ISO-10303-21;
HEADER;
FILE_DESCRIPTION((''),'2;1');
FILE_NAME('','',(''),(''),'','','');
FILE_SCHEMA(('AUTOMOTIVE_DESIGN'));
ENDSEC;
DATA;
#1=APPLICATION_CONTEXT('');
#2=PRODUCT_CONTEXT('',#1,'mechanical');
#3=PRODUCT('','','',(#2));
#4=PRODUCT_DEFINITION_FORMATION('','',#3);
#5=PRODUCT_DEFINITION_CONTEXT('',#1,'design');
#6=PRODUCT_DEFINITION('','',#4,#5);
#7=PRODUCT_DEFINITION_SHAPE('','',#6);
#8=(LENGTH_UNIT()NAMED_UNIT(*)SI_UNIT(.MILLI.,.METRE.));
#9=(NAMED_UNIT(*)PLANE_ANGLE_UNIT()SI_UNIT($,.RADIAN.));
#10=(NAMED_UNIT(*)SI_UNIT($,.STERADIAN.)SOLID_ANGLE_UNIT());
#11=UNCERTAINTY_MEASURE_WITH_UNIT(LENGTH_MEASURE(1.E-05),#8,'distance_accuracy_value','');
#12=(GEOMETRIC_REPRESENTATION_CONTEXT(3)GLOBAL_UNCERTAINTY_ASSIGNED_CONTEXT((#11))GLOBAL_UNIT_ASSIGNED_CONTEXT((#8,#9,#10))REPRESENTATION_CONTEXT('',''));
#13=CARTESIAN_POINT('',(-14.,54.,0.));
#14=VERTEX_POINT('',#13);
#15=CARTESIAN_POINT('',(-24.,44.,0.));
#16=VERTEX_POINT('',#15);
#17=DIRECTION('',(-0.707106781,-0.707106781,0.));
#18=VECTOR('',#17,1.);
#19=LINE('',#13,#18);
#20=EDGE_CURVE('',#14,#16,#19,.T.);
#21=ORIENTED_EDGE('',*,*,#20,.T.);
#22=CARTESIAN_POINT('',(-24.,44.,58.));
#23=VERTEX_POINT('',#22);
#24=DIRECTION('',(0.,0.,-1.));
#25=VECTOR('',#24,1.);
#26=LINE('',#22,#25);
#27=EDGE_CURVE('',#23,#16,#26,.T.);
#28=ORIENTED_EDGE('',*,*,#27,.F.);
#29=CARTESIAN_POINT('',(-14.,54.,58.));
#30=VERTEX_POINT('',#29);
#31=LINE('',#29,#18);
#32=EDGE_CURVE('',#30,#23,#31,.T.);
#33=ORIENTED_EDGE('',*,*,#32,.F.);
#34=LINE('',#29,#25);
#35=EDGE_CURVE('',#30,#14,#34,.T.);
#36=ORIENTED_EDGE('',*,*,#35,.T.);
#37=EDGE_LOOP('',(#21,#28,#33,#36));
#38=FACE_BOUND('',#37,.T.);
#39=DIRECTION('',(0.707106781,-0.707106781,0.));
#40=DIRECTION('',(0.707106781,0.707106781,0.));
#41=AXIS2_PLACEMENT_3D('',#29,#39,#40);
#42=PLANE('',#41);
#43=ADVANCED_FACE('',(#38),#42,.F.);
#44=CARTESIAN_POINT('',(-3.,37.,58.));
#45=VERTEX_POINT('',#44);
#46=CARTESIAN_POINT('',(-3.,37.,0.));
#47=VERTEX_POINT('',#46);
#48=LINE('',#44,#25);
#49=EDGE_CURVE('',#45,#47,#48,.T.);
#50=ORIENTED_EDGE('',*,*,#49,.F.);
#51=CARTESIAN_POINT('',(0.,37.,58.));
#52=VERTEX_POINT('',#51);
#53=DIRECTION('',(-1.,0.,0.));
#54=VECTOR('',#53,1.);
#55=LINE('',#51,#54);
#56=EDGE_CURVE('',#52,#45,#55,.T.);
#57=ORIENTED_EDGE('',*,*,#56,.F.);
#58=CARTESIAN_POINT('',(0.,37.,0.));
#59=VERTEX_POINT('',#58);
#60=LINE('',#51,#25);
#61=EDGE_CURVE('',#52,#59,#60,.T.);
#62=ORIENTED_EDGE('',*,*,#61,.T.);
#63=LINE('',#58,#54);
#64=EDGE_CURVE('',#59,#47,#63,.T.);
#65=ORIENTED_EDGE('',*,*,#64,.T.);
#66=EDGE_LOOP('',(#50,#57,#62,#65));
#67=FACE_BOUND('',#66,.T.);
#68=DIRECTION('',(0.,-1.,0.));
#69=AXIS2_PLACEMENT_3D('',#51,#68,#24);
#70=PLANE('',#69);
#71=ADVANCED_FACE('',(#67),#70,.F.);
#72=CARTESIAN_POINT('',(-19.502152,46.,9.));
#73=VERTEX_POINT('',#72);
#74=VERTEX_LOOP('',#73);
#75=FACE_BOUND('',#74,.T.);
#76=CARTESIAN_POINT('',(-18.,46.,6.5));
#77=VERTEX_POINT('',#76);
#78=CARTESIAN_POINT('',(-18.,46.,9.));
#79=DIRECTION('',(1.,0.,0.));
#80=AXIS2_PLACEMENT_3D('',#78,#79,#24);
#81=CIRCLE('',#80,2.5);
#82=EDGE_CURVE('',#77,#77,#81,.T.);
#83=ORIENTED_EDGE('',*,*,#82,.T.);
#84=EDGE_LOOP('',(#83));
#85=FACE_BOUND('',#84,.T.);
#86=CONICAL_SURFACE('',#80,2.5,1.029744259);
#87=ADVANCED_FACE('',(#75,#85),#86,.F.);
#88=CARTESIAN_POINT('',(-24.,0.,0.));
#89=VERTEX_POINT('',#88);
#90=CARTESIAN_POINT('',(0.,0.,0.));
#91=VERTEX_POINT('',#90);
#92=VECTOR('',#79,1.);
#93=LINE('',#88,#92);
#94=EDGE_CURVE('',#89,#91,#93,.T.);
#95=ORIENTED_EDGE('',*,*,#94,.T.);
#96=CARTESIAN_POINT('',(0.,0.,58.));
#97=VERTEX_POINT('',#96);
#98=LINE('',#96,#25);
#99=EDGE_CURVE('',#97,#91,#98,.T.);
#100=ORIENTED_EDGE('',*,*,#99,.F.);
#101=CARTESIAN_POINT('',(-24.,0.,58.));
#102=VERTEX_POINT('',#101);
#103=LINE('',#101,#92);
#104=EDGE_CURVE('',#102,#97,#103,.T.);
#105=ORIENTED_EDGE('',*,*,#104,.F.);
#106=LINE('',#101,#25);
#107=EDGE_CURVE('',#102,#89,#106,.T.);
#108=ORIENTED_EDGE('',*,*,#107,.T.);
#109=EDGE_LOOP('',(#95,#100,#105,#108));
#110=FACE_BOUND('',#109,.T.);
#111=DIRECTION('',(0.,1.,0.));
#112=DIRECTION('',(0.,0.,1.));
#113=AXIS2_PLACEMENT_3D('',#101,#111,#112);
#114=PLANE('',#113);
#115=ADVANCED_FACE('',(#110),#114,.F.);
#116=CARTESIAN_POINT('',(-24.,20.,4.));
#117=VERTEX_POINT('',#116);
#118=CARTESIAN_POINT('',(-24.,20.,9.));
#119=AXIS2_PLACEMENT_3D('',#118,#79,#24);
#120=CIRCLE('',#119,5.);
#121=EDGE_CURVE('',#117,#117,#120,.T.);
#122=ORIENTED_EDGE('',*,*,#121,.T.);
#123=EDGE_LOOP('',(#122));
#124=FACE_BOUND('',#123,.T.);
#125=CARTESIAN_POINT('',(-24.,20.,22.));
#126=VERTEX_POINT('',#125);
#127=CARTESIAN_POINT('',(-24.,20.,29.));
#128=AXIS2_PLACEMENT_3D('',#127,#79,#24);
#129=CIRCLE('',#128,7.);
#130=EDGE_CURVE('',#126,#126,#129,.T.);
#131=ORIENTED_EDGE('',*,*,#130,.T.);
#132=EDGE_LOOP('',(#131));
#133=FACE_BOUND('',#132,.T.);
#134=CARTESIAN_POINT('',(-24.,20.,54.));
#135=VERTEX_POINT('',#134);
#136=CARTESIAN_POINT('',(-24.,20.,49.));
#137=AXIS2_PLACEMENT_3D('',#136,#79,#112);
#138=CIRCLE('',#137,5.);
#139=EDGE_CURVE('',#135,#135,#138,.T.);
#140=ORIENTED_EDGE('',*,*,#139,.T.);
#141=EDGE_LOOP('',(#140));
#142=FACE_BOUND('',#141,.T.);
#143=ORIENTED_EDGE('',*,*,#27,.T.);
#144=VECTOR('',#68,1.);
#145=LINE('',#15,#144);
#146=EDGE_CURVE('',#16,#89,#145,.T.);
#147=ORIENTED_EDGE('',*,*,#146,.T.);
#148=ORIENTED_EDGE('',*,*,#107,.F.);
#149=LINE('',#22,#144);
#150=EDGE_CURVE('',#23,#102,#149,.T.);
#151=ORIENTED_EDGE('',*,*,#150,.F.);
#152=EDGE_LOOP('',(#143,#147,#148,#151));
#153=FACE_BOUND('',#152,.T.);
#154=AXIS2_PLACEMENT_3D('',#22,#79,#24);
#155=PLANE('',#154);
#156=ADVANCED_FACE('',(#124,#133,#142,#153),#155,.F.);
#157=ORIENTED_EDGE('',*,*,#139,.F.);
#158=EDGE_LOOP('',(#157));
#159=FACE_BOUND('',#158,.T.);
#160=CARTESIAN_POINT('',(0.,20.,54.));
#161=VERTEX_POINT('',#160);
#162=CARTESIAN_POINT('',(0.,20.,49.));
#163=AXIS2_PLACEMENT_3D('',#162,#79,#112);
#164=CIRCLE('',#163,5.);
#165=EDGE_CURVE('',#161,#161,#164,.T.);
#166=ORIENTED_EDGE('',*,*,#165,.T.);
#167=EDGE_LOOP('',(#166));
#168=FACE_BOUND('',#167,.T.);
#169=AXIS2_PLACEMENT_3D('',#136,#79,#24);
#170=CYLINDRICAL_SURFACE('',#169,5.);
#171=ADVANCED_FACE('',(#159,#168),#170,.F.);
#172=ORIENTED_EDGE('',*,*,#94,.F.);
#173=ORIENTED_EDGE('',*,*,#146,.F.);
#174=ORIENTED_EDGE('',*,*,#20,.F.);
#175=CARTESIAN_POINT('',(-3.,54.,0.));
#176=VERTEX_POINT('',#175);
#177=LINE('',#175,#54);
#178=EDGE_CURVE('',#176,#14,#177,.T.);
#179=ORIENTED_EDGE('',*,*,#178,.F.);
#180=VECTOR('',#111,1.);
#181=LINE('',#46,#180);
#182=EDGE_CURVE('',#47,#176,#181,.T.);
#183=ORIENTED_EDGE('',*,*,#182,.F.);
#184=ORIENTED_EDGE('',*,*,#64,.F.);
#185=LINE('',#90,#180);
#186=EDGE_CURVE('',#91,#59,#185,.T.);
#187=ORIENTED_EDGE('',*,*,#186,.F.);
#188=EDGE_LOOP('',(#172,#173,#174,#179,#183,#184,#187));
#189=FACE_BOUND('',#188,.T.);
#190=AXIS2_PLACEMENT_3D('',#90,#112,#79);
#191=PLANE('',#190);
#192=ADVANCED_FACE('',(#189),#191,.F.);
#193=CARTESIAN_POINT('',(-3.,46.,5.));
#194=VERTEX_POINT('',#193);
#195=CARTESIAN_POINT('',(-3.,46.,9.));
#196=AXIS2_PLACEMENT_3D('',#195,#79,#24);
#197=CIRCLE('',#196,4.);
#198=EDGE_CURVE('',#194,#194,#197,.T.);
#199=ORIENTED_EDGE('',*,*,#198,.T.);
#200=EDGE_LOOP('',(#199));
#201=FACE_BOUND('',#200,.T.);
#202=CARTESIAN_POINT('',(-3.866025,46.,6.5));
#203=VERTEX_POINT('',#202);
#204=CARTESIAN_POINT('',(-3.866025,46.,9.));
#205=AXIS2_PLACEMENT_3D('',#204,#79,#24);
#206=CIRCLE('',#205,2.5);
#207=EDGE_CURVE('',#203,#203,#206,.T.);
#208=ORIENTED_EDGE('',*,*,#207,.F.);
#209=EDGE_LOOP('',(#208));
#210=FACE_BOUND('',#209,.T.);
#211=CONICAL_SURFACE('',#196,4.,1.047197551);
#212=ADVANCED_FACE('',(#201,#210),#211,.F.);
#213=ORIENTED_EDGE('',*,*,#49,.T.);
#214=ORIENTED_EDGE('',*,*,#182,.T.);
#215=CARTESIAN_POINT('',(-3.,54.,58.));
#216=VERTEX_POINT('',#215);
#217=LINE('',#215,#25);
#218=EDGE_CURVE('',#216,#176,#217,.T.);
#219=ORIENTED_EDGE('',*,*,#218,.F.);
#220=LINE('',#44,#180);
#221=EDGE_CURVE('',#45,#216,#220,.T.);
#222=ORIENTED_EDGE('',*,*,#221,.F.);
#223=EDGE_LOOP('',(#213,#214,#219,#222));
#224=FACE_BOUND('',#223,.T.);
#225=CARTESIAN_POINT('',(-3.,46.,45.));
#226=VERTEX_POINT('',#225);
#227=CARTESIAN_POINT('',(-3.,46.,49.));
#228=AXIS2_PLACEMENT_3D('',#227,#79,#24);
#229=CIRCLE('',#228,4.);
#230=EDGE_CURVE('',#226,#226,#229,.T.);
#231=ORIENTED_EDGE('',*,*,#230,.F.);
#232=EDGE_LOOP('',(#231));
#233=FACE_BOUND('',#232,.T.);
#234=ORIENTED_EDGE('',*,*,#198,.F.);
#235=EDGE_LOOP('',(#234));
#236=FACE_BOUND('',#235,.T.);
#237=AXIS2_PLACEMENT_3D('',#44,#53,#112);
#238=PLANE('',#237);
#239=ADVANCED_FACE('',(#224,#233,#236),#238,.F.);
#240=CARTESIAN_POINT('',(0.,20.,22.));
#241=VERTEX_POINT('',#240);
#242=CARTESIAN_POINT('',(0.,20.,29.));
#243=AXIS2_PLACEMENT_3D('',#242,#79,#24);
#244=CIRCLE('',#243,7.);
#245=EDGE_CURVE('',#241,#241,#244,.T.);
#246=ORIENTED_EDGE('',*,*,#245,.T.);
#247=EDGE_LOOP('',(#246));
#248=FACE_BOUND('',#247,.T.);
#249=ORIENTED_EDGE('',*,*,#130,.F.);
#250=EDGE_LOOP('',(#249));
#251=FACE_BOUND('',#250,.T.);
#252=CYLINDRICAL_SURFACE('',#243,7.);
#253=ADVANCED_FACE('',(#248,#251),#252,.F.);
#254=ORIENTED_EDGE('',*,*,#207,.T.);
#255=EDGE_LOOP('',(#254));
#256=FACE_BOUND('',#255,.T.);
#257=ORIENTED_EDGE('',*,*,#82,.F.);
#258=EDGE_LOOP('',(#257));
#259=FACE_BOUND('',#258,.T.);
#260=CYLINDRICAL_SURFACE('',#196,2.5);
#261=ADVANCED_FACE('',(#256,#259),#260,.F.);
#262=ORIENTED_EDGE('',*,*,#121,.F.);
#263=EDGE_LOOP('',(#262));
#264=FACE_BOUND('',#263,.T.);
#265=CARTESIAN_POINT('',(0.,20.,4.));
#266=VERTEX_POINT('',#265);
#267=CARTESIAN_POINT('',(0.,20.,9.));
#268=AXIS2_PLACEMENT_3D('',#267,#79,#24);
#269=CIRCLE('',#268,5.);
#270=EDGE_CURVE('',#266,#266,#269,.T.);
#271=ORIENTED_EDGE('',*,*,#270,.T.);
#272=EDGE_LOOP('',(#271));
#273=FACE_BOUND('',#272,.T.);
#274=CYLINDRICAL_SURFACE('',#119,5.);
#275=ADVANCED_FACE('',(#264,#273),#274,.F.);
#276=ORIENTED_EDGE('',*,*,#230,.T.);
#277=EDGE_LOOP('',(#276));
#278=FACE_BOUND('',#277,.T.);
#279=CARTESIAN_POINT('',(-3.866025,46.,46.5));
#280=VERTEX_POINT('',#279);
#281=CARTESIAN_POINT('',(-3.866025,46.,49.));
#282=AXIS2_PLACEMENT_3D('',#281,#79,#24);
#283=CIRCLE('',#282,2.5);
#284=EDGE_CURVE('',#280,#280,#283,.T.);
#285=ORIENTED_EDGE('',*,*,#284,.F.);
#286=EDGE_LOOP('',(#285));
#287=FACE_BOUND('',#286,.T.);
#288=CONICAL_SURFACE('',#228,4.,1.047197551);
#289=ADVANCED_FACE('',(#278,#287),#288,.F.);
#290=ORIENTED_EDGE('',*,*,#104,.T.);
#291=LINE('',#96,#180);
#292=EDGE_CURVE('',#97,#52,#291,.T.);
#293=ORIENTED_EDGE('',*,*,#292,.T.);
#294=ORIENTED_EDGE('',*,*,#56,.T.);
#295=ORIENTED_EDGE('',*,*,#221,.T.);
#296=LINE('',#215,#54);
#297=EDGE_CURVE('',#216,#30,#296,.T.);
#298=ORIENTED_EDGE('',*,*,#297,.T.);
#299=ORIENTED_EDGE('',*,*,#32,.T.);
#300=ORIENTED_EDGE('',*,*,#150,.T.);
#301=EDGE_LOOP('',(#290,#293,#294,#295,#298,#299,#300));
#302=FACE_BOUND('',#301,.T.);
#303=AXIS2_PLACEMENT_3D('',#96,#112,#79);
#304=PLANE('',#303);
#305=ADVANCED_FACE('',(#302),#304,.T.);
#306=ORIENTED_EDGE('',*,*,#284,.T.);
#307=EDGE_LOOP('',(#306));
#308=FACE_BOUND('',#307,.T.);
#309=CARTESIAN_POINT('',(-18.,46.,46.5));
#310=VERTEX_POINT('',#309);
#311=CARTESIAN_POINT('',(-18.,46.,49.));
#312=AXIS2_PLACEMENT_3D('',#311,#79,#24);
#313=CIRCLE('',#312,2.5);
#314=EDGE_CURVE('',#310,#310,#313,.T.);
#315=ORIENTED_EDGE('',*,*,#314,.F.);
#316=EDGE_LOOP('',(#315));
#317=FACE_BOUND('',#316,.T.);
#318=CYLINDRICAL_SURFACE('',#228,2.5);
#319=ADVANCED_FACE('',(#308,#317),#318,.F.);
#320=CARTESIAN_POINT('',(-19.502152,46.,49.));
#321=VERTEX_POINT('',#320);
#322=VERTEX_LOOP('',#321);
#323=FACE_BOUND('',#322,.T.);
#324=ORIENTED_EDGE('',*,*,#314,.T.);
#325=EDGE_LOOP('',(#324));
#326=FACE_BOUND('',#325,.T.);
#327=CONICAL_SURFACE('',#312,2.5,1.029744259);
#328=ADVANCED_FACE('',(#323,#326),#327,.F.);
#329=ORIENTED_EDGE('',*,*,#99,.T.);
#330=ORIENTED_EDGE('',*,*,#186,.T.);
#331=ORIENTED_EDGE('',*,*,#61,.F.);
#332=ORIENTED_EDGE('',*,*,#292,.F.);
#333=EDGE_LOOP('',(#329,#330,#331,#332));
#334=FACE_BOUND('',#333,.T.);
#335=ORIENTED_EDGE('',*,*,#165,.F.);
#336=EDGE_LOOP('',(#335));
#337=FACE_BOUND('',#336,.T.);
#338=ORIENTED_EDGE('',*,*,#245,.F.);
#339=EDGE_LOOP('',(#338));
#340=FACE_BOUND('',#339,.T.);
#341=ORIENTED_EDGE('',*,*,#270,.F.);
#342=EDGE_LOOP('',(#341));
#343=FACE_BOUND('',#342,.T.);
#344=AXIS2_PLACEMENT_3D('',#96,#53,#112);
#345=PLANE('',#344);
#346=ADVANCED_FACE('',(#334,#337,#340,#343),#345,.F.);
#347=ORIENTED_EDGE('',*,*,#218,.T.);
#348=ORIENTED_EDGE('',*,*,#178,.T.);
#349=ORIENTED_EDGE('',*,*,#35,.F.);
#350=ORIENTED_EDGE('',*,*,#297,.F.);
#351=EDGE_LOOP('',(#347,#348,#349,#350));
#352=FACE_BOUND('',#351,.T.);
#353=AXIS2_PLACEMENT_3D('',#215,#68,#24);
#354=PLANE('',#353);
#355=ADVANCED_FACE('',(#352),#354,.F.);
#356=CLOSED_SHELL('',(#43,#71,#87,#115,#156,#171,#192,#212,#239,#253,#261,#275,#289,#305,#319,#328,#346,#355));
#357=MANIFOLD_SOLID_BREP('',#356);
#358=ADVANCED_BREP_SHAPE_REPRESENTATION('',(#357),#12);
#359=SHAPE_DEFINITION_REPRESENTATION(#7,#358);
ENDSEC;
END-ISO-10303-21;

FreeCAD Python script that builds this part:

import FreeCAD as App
import Part
import Sketcher
from FreeCAD import Vector
Q = App.Units.Quantity


def add_polygon(sketch, points):
    """Adds a closed chain of lines whose ends are joined by coincident constraints."""
    first, n = sketch.GeometryCount, len(points)
    for a, b in zip(points, points[1:] + points[:1]):
        sketch.addGeometry(Part.LineSegment(App.Vector(*a, 0), App.Vector(*b, 0)), False)
    for i in range(n):
        sketch.addConstraint(Sketcher.Constraint("Coincident", first + i, 2, first + (i + 1) % n, 1))

doc = App.newDocument("Part")
body = doc.addObject("PartDesign::Body", "Body")

sketch1 = doc.addObject("Sketcher::SketchObject", "Sketch")
body.addObject(sketch1)
sketch1.AttachmentSupport = (doc.XY_Plane, [""])
sketch1.MapMode = "FlatFace"
add_polygon(sketch1, [(0, 0), (0, 37), (-3, 37), (-3, 54), (-14, 54), (-24, 44), (-24, 0)])
sketch1.addConstraint([
    Sketcher.Constraint("Vertical", 0),
    Sketcher.Constraint("Horizontal", 1),
    Sketcher.Constraint("Vertical", 2),
    Sketcher.Constraint("Horizontal", 3),
    Sketcher.Constraint("Vertical", 5),
    Sketcher.Constraint("Horizontal", 6),
    Sketcher.Constraint("Coincident", 6, 2, -1, 1),
    Sketcher.Constraint("DistanceX", 1, 2, 1, 1, 3.0),
    Sketcher.Constraint("DistanceX", 3, 2, 3, 1, 11.0),
    Sketcher.Constraint("DistanceX", 6, 1, 6, 2, 24.0),
    Sketcher.Constraint("DistanceY", 0, 1, 0, 2, 37.0),
    Sketcher.Constraint("DistanceY", 2, 1, 2, 2, 17.0),
    Sketcher.Constraint("DistanceY", 5, 2, 5, 1, 44.0),
])
pad1 = doc.addObject("PartDesign::Pad", "Pad")
body.addObject(pad1)
pad1.Profile = sketch1
pad1.Length = 58

sketch2 = doc.addObject("Sketcher::SketchObject", "Sketch001")
body.addObject(sketch2)
sketch2.AttachmentSupport = (doc.YZ_Plane, [""])
sketch2.MapMode = "FlatFace"
sketch2.addGeometry([
    Part.Circle(Vector(20, 9, 0), Vector(0, 0, 1), 5),
    Part.Circle(Vector(20, 49, 0), Vector(0, 0, 1), 5),
], False)
sketch2.addConstraint([
    Sketcher.Constraint("Equal", 0, 1),
    Sketcher.Constraint("Vertical", 0, 3, 1, 3),
    Sketcher.Constraint("Diameter", 0, 10.0),
    Sketcher.Constraint("DistanceX", -1, 1, 0, 3, 20.0),
    Sketcher.Constraint("DistanceY", -1, 1, 0, 3, 9.0),
    Sketcher.Constraint("DistanceY", -1, 1, 1, 3, 49.0),
])
pocket1 = doc.addObject("PartDesign::Pocket", "Pocket")
body.addObject(pocket1)
pocket1.Profile = sketch2
pocket1.Type = "ThroughAll"

sketch3 = doc.addObject("Sketcher::SketchObject", "Sketch002")
body.addObject(sketch3)
sketch3.AttachmentSupport = (doc.YZ_Plane, [""])
sketch3.MapMode = "FlatFace"
sketch3.addGeometry(Part.Circle(Vector(20, 29, 0), Vector(0, 0, 1), 7), False)
sketch3.addConstraint([
    Sketcher.Constraint("Diameter", 0, 14.0),
    Sketcher.Constraint("DistanceX", -1, 1, 0, 3, 20.0),
    Sketcher.Constraint("DistanceY", -1, 1, 0, 3, 29.0),
])
doc.recompute()
hole = doc.addObject("PartDesign::Hole", "Hole")
body.addObject(hole)
hole.Profile = sketch3
hole.ThreadType = "None"
hole.Diameter = 14
hole.DepthType = "ThroughAll"

sketch4 = doc.addObject("Sketcher::SketchObject", "Sketch003")
body.addObject(sketch4)
sketch4.AttachmentSupport = (doc.XZ_Plane, [""])
sketch4.MapMode = "FlatFace"
sketch4.AttachmentOffset = App.Placement(Vector(0, 0, -46), App.Rotation())
add_polygon(sketch4, [(-19.5, 9), (-3, 9), (-3, 5), (-3.9, 6.5), (-18, 6.5)])
sketch4.addGeometry(Part.LineSegment(Vector(-3, 9, 0), Vector(-19.5, 9, 0)), True)
sketch4.addConstraint([
    Sketcher.Constraint("Horizontal", 0),
    Sketcher.Constraint("Vertical", 1),
    Sketcher.Constraint("Horizontal", 3),
    Sketcher.Constraint("Horizontal", 5),
    Sketcher.Constraint("Coincident", 5, 1, 0, 2),
    Sketcher.Constraint("Equal", 0, 5),
    Sketcher.Constraint("DistanceY", 1, 2, 1, 1, 4.0),
    Sketcher.Constraint("Angle", 2, Q("120 deg")),
    Sketcher.Constraint("Angle", 4, Q("121 deg")),
    Sketcher.Constraint("DistanceX", 0, 2, -1, 1, 3.0),
    Sketcher.Constraint("DistanceY", -1, 1, 0, 2, 9.0),
    Sketcher.Constraint("DistanceX", 3, 2, -1, 1, 18.0),
    Sketcher.Constraint("DistanceY", -1, 1, 2, 2, 6.5),
])
groove = doc.addObject("PartDesign::Groove", "Groove")
body.addObject(groove)
groove.Profile = sketch4
groove.ReferenceAxis = (sketch4, ["Axis0"])
groove.Angle = 360
doc.recompute()

linearpattern = doc.addObject("PartDesign::LinearPattern", "LinearPattern")
body.addObject(linearpattern)
linearpattern.Originals = [groove]
linearpattern.Direction = (doc.Z_Axis, [""])
linearpattern.Mode = "offset"
linearpattern.Offset = 40
linearpattern.Occurrences = 2
body.Tip = linearpattern

doc.recompute()
